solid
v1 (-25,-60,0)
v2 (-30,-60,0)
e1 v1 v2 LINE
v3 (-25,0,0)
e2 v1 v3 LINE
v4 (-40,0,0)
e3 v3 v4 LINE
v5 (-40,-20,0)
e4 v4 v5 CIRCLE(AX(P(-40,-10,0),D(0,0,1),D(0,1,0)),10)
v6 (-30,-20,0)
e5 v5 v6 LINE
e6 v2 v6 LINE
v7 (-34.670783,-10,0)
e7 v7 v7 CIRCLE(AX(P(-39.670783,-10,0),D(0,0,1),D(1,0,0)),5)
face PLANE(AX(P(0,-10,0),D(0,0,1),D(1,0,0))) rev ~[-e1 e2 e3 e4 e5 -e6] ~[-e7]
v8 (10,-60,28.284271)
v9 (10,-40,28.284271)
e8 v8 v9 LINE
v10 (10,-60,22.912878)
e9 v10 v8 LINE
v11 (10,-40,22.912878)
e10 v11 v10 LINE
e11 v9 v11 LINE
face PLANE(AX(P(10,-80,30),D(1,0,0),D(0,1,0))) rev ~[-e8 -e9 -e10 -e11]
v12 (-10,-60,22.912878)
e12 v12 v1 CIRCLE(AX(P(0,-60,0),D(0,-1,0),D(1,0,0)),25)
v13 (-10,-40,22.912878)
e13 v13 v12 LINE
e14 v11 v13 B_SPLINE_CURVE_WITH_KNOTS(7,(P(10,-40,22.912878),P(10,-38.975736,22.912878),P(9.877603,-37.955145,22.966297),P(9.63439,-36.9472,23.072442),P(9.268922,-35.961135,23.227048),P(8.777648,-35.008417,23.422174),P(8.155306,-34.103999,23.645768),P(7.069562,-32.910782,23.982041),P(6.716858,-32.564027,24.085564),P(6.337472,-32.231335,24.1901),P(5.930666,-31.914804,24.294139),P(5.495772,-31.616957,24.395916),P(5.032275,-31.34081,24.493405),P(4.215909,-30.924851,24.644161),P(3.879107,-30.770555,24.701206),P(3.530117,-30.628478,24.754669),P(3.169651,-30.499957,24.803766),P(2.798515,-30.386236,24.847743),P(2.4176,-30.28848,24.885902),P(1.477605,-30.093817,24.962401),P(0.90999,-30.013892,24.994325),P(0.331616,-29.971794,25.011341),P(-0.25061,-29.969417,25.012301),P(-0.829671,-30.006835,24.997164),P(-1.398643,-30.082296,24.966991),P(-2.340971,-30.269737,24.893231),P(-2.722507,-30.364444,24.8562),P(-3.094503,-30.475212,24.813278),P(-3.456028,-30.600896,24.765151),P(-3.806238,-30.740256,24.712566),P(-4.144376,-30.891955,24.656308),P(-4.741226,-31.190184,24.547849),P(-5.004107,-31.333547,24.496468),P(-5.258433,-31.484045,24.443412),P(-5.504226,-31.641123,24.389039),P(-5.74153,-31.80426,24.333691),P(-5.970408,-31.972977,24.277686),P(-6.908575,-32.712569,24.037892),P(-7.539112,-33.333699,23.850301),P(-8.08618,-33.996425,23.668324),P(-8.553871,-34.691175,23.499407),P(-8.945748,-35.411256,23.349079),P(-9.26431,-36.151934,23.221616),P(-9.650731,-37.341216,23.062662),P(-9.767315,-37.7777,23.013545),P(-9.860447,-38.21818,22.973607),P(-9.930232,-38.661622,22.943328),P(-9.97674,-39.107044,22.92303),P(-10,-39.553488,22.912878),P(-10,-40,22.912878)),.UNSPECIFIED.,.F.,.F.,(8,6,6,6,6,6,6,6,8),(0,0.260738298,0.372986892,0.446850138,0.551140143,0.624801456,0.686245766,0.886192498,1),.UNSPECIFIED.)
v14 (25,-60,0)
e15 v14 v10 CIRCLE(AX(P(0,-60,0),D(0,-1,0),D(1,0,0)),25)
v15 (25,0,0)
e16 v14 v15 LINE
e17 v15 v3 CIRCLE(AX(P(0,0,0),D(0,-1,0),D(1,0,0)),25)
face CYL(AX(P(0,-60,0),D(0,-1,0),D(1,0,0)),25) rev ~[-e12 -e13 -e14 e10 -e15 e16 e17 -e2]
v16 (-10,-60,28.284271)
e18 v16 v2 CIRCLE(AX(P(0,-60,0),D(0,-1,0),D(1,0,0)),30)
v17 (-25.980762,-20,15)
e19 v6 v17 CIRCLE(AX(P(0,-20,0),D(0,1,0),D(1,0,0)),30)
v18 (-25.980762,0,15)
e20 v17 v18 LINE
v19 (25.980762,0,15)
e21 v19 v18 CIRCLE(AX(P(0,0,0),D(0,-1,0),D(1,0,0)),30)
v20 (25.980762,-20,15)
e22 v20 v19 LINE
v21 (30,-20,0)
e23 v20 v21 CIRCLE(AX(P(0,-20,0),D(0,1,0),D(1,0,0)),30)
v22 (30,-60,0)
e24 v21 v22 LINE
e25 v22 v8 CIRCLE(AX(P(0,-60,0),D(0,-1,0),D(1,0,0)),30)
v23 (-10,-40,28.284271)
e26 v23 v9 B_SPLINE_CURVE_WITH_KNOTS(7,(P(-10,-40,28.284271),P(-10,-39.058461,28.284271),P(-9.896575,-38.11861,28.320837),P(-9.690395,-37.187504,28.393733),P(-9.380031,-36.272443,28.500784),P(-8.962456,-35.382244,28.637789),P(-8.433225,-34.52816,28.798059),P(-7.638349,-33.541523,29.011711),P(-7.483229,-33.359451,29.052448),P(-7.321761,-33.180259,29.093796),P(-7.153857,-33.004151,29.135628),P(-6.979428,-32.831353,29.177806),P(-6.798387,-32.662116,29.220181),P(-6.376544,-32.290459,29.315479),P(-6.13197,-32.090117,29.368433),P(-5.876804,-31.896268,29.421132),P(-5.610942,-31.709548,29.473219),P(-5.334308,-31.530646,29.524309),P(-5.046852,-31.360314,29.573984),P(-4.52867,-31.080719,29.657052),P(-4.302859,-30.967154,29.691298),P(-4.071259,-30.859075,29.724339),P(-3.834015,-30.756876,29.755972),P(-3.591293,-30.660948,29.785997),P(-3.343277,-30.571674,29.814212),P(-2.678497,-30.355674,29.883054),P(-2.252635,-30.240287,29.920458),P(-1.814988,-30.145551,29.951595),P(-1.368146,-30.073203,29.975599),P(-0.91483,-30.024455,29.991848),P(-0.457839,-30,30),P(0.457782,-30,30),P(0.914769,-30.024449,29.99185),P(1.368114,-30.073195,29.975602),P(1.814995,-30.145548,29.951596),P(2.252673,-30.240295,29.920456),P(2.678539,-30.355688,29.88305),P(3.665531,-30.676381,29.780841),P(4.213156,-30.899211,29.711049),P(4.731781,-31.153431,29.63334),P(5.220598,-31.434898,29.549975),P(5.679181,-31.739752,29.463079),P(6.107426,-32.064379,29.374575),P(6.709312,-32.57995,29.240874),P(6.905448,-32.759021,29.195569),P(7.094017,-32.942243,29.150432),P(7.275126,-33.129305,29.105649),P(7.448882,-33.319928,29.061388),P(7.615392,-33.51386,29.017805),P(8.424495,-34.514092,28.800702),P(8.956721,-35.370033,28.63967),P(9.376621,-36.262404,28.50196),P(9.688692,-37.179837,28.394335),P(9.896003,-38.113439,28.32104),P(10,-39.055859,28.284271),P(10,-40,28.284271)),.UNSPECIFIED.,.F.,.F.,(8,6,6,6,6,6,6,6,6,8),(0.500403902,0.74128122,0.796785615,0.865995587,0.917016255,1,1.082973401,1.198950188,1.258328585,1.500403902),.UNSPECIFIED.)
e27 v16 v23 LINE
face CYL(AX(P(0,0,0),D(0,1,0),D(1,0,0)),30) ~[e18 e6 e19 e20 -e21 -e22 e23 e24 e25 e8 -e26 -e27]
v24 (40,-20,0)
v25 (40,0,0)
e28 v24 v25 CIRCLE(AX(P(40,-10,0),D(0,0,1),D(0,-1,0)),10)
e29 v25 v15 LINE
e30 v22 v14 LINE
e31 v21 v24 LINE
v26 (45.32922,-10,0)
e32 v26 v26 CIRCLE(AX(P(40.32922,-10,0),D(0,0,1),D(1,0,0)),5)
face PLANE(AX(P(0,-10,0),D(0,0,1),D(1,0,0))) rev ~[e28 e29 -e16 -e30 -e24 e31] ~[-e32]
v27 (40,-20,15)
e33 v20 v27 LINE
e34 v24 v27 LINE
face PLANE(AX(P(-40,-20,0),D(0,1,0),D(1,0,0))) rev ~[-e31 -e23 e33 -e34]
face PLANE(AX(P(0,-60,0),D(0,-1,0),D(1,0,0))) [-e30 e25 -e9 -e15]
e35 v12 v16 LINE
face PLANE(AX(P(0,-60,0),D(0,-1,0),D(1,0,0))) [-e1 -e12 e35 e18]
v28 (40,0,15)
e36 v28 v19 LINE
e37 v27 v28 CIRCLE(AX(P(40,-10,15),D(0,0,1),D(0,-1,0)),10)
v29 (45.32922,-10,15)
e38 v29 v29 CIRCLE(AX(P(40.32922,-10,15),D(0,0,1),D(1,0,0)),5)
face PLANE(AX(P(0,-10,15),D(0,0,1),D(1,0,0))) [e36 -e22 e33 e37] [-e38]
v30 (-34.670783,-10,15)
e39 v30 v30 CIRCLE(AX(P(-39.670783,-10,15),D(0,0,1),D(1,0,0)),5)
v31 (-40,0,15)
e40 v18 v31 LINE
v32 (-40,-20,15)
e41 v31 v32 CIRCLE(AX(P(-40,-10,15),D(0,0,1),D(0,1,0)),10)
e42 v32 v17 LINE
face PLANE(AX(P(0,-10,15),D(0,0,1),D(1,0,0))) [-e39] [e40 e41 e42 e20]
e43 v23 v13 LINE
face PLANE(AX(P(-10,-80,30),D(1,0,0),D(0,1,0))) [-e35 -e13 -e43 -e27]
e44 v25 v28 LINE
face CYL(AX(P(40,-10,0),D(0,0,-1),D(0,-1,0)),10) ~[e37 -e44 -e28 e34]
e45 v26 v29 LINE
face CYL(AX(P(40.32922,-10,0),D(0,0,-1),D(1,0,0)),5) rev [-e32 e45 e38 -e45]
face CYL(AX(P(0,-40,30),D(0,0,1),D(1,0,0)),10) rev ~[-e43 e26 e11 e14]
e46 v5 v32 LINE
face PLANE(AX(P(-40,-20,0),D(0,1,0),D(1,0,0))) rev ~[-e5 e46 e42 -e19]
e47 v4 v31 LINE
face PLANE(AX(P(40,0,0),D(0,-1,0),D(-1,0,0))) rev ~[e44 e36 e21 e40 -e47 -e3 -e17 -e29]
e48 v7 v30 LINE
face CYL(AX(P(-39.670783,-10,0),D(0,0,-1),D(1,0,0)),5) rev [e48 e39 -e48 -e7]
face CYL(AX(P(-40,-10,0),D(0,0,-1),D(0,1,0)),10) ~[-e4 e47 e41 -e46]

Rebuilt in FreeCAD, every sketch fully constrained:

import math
import FreeCAD as App
import Part
import Sketcher

V = App.Vector

doc = App.newDocument("Part")
params = doc.addObject("Spreadsheet::Sheet", "Params")
for row, (alias, value) in enumerate([
    ("sketch1_diameter", "60 mm"),
    ("pad1_length", "60 mm"),
    ("sketch2_radius", "30 mm"),
    ("sketch3_diameter", "10 mm"),
    ("sketch3_radius", "10 mm"),
    ("sketch3_width", "80 mm"),
    ("pad2_length", "15 mm"),
    ("sketch4_radius", "25 mm"),
    ("sketch5_radius", "10 mm"),
    ("sketch5_height", "40 mm"),
    ("pocket3_length", "25 mm"),
], start=1):
    params.set(f"A{row}", alias)
    params.set(f"B{row}", "=" + value)
    params.setAlias(f"B{row}", alias)

body = doc.addObject("PartDesign::Body", "Body")

# Sketch on XZ plane
sketch1 = doc.addObject("Sketcher::SketchObject", "Sketch")
body.addObject(sketch1)
sketch1.AttachmentSupport = (doc.XZ_Plane, [""])
sketch1.MapMode = "FlatFace"
sketch1.addGeometry(Part.Circle(V(0, 0, 0), V(0, 0, 1), 30), False)
sketch1.addConstraint(Sketcher.Constraint("Coincident", 0, 3, -1, 1))
sketch1.addConstraint(Sketcher.Constraint("Diameter", 0, 60.0))
sketch1.setExpression("Constraints[1]", "Params.sketch1_diameter")
pad1 = doc.addObject("PartDesign::Pad", "Pad")
body.addObject(pad1)
pad1.Profile = sketch1
pad1.setExpression("Length", "Params.pad1_length")

# Sketch on XZ plane
sketch2 = doc.addObject("Sketcher::SketchObject", "Sketch001")
body.addObject(sketch2)
sketch2.AttachmentSupport = (doc.XZ_Plane, [""])
sketch2.MapMode = "FlatFace"
sketch2.AttachmentOffset = App.Placement(V(0, 0, 60), App.Rotation())
sketch2.addGeometry(Part.LineSegment(V(30, 0, 0), V(-30, 0, 0)), False)
sketch2.addGeometry(Part.ArcOfCircle(Part.Circle(V(0, 0, 0), V(0, 0, 1), 30), math.radians(180), math.radians(360)), False)
sketch2.addConstraint(Sketcher.Constraint("Coincident", 0, 1, 1, 2))
sketch2.addConstraint(Sketcher.Constraint("Coincident", 1, 1, 0, 2))
sketch2.addConstraint(Sketcher.Constraint("Horizontal", 0))
sketch2.addConstraint(Sketcher.Constraint("Coincident", 1, 3, -1, 1))
sketch2.addConstraint(Sketcher.Constraint("PointOnObject", 0, 1, -1))
sketch2.addConstraint(Sketcher.Constraint("Radius", 1, 30.0))
sketch2.setExpression("Constraints[5]", "Params.sketch2_radius")
pocket1 = doc.addObject("PartDesign::Pocket", "Pocket")
body.addObject(pocket1)
pocket1.Profile = sketch2
pocket1.Type = "ThroughAll"

# Sketch on XY plane
sketch3 = doc.addObject("Sketcher::SketchObject", "Sketch002")
body.addObject(sketch3)
sketch3.AttachmentSupport = (doc.XY_Plane, [""])
sketch3.MapMode = "FlatFace"
sketch3.addGeometry(Part.LineSegment(V(40, 0, 0), V(-40, 0, 0)), False)
sketch3.addGeometry(Part.ArcOfCircle(Part.Circle(V(-40, -10, 0), V(0, 0, 1), 10), math.radians(90), math.radians(270)), False)
sketch3.addGeometry(Part.LineSegment(V(-40, -20, 0), V(40, -20, 0)), False)
sketch3.addGeometry(Part.ArcOfCircle(Part.Circle(V(40, -10, 0), V(0, 0, 1), 10), math.radians(-90), math.radians(90)), False)
sketch3.addGeometry(Part.Circle(V(-40, -10, 0), V(0, 0, 1), 5), False)
sketch3.addGeometry(Part.Circle(V(40, -10, 0), V(0, 0, 1), 5), False)
sketch3.addConstraint(Sketcher.Constraint("Tangent", 0, 2, 1, 1))
sketch3.addConstraint(Sketcher.Constraint("Tangent", 1, 2, 2, 1))
sketch3.addConstraint(Sketcher.Constraint("Tangent", 2, 2, 3, 1))
sketch3.addConstraint(Sketcher.Constraint("Tangent", 3, 2, 0, 1))
sketch3.addConstraint(Sketcher.Constraint("Horizontal", 0))
sketch3.addConstraint(Sketcher.Constraint("Horizontal", 2))
sketch3.addConstraint(Sketcher.Constraint("Equal", 4, 5))
sketch3.addConstraint(Sketcher.Constraint("Symmetric", 0, 2, 3, 2, -1, 1))
sketch3.addConstraint(Sketcher.Constraint("Horizontal", 3, 3, 4, 3))
sketch3.addConstraint(Sketcher.Constraint("Horizontal", 4, 3, 5, 3))
sketch3.addConstraint(Sketcher.Constraint("Diameter", 4, 10.0))
sketch3.addConstraint(Sketcher.Constraint("Radius", 1, 10.0))
sketch3.addConstraint(Sketcher.Constraint("DistanceX", 0, 2, 0, 1, 80.0))
sketch3.addConstraint(Sketcher.Constraint("DistanceX", -1, 1, 5, 3, 40.32922))
sketch3.addConstraint(Sketcher.Constraint("DistanceX", 4, 3, -1, 1, 39.670783))
sketch3.setExpression("Constraints[10]", "Params.sketch3_diameter")
sketch3.setExpression("Constraints[11]", "Params.sketch3_radius")
sketch3.setExpression("Constraints[12]", "Params.sketch3_width")
pad2 = doc.addObject("PartDesign::Pad", "Pad001")
body.addObject(pad2)
pad2.Profile = sketch3
pad2.setExpression("Length", "Params.pad2_length")

# Sketch on XZ plane
sketch4 = doc.addObject("Sketcher::SketchObject", "Sketch003")
body.addObject(sketch4)
sketch4.AttachmentSupport = (doc.XZ_Plane, [""])
sketch4.MapMode = "FlatFace"
sketch4.AttachmentOffset = App.Placement(V(0, 0, 60), App.Rotation())
sketch4.addGeometry(Part.LineSegment(V(-25, 0, 0), V(25, 0, 0)), False)
sketch4.addGeometry(Part.ArcOfCircle(Part.Circle(V(0, 0, 0), V(0, 0, 1), 25), math.radians(0), math.radians(180)), False)
sketch4.addConstraint(Sketcher.Constraint("Coincident", 0, 1, 1, 2))
sketch4.addConstraint(Sketcher.Constraint("Coincident", 1, 1, 0, 2))
sketch4.addConstraint(Sketcher.Constraint("Horizontal", 0))
sketch4.addConstraint(Sketcher.Constraint("Coincident", 1, 3, -1, 1))
sketch4.addConstraint(Sketcher.Constraint("PointOnObject", 0, 1, -1))
sketch4.addConstraint(Sketcher.Constraint("Radius", 1, 25.0))
sketch4.setExpression("Constraints[5]", "Params.sketch4_radius")
pocket2 = doc.addObject("PartDesign::Pocket", "Pocket001")
body.addObject(pocket2)
pocket2.Profile = sketch4
pocket2.Type = "ThroughAll"

# Sketch on XY plane
sketch5 = doc.addObject("Sketcher::SketchObject", "Sketch004")
body.addObject(sketch5)
sketch5.AttachmentSupport = (doc.XY_Plane, [""])
sketch5.MapMode = "FlatFace"
sketch5.AttachmentOffset = App.Placement(V(0, 0, 30), App.Rotation())
sketch5.addGeometry(Part.ArcOfCircle(Part.Circle(V(0, -40, 0), V(0, 0, 1), 10), math.radians(0), math.radians(180)), False)
sketch5.addGeometry(Part.LineSegment(V(-10, -40, 0), V(-10, -80, 0)), False)
sketch5.addGeometry(Part.LineSegment(V(-10, -80, 0), V(10, -80, 0)), False)
sketch5.addGeometry(Part.LineSegment(V(10, -80, 0), V(10, -40, 0)), False)
sketch5.addConstraint(Sketcher.Constraint("Tangent", 0, 2, 1, 1))
sketch5.addConstraint(Sketcher.Constraint("Coincident", 1, 2, 2, 1))
sketch5.addConstraint(Sketcher.Constraint("Coincident", 2, 2, 3, 1))
sketch5.addConstraint(Sketcher.Constraint("Tangent", 3, 2, 0, 1))
sketch5.addConstraint(Sketcher.Constraint("Vertical", 1))
sketch5.addConstraint(Sketcher.Constraint("Horizontal", 2))
sketch5.addConstraint(Sketcher.Constraint("Vertical", 3))
sketch5.addConstraint(Sketcher.Constraint("PointOnObject", 0, 3, -2))
sketch5.addConstraint(Sketcher.Constraint("Radius", 0, 10.0))
sketch5.addConstraint(Sketcher.Constraint("DistanceY", 1, 2, 1, 1, 40.0))
sketch5.addConstraint(Sketcher.Constraint("DistanceY", 0, 3, -1, 1, 40.0))
sketch5.setExpression("Constraints[8]", "Params.sketch5_radius")
sketch5.setExpression("Constraints[9]", "Params.sketch5_height")
pocket3 = doc.addObject("PartDesign::Pocket", "Pocket002")
body.addObject(pocket3)
pocket3.Profile = sketch5
pocket3.setExpression("Length", "Params.pocket3_length")

doc.recompute()
